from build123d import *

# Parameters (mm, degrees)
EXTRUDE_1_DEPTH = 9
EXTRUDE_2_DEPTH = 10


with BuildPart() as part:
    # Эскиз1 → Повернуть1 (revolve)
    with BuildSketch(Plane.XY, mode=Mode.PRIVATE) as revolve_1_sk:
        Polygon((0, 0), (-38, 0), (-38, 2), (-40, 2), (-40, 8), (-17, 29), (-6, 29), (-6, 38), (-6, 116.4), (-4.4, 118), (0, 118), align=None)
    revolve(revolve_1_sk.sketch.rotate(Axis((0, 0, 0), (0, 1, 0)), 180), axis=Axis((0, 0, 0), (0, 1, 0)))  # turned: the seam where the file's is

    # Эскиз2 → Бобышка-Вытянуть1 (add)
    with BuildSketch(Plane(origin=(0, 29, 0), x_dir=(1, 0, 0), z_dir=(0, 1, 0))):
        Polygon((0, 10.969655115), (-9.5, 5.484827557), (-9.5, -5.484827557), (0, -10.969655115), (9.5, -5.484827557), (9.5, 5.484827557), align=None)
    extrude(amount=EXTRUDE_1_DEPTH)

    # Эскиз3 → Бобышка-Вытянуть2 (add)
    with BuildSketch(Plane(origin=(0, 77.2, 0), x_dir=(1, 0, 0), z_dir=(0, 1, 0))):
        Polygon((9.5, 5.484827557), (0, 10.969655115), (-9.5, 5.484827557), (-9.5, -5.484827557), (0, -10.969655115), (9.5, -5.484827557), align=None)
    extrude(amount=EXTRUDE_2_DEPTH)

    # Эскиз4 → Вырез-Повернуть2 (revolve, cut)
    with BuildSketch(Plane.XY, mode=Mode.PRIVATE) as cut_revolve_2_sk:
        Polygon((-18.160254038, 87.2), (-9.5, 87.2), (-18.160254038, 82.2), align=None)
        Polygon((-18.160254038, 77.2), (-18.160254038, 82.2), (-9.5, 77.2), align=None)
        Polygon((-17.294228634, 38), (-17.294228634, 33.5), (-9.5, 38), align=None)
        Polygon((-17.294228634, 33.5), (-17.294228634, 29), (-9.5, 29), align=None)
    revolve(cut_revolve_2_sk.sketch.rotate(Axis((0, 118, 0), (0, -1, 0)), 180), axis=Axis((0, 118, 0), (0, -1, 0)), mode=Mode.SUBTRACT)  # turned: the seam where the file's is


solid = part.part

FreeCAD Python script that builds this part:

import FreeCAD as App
import Part
import Sketcher
Q = App.Units.Quantity

doc = App.newDocument("Part")
params = doc.addObject("Spreadsheet::Sheet", "Params")
for row, (alias, value) in enumerate([
    ("sketch1_width", "38 mm"),
    ("sketch1_width2", "11 mm"),
    ("sketch1_width3", "2 mm"),
    ("sketch1_height", "118 mm"),
    ("sketch1_height2", "6 mm"),
    ("revolution_angle", "360 deg"),
    ("pad1_length", "9 mm"),
    ("pad2_length", "10 mm"),
    ("sketch4_height", "5 mm"),
    ("sketch4_length", "9 mm"),
    ("groove_angle", "360 deg"),
], start=1):
    params.set(f"A{row}", alias)
    params.set(f"B{row}", "=" + value)
    params.setAlias(f"B{row}", alias)

body = doc.addObject("PartDesign::Body", "Body")

# Sketch on XY plane
sketch1 = doc.addObject("Sketcher::SketchObject", "Sketch")
body.addObject(sketch1)
sketch1.AttachmentSupport = (doc.XY_Plane, [""])
sketch1.MapMode = "FlatFace"
sketch1.addGeometry([
    Part.LineSegment(App.Vector(-38, 0, 0), App.Vector(0, 0, 0)),  # 0
    Part.LineSegment(App.Vector(0, 0, 0), App.Vector(0, 118, 0)),  # 1
    Part.LineSegment(App.Vector(0, 118, 0), App.Vector(-4.4, 118, 0)),  # 2
    Part.LineSegment(App.Vector(-4.4, 118, 0), App.Vector(-6, 116.4, 0)),  # 3
    Part.LineSegment(App.Vector(-6, 116.4, 0), App.Vector(-6, 29, 0)),  # 4
    Part.LineSegment(App.Vector(-6, 29, 0), App.Vector(-17, 29, 0)),  # 5
    Part.LineSegment(App.Vector(-17, 29, 0), App.Vector(-40, 8, 0)),  # 6
    Part.LineSegment(App.Vector(-40, 8, 0), App.Vector(-40, 2, 0)),  # 7
    Part.LineSegment(App.Vector(-40, 2, 0), App.Vector(-38, 2, 0)),  # 8
    Part.LineSegment(App.Vector(-38, 2, 0), App.Vector(-38, 0, 0)),  # 9
], False)
sketch1.addConstraint([
    Sketcher.Constraint("Coincident", 0, 2, 1, 1),
    Sketcher.Constraint("Coincident", 1, 2, 2, 1),
    Sketcher.Constraint("Coincident", 2, 2, 3, 1),
    Sketcher.Constraint("Coincident", 3, 2, 4, 1),
    Sketcher.Constraint("Coincident", 4, 2, 5, 1),
    Sketcher.Constraint("Coincident", 5, 2, 6, 1),
    Sketcher.Constraint("Coincident", 6, 2, 7, 1),
    Sketcher.Constraint("Coincident", 7, 2, 8, 1),
    Sketcher.Constraint("Coincident", 8, 2, 9, 1),
    Sketcher.Constraint("Coincident", 9, 2, 0, 1),
    Sketcher.Constraint("Horizontal", 0),
    Sketcher.Constraint("Vertical", 1),
    Sketcher.Constraint("Horizontal", 2),
    Sketcher.Constraint("Vertical", 4),
    Sketcher.Constraint("Horizontal", 5),
    Sketcher.Constraint("Vertical", 7),
    Sketcher.Constraint("Horizontal", 8),
    Sketcher.Constraint("Vertical", 9),
    Sketcher.Constraint("Coincident", 0, 2, -1, 1),
    Sketcher.Constraint("Equal", 8, 9),
    Sketcher.Constraint("DistanceX", 0, 1, 0, 2, Q("38 mm")),
    Sketcher.Constraint("DistanceX", 5, 2, 5, 1, Q("11 mm")),
    Sketcher.Constraint("DistanceX", 8, 1, 8, 2, Q("2 mm")),
    Sketcher.Constraint("DistanceY", 1, 1, 1, 2, Q("118 mm")),
    Sketcher.Constraint("DistanceY", 7, 2, 7, 1, Q("6 mm")),
    Sketcher.Constraint("Angle", 3, Q("-135 deg")),
    Sketcher.Constraint("DistanceX", 2, 2, 2, 1, Q("4.4 mm")),
    Sketcher.Constraint("DistanceY", 4, 2, 4, 1, Q("87.4 mm")),
    Sketcher.Constraint("DistanceX", 3, 2, -1, 1, Q("6 mm")),
])
sketch1.setExpression("Constraints[20]", "Params.sketch1_width")
sketch1.setExpression("Constraints[21]", "Params.sketch1_width2")
sketch1.setExpression("Constraints[22]", "Params.sketch1_width3")
sketch1.setExpression("Constraints[23]", "Params.sketch1_height")
sketch1.setExpression("Constraints[24]", "Params.sketch1_height2")
revolution = doc.addObject("PartDesign::Revolution", "Revolution")
body.addObject(revolution)
revolution.Profile = sketch1
revolution.ReferenceAxis = (sketch1, ["V_Axis"])
revolution.setExpression("Angle", "Params.revolution_angle")

# Sketch on XZ plane
sketch2 = doc.addObject("Sketcher::SketchObject", "Sketch001")
body.addObject(sketch2)
sketch2.AttachmentSupport = (doc.XZ_Plane, [""])
sketch2.MapMode = "FlatFace"
sketch2.AttachmentOffset = App.Placement(App.Vector(0, 0, -29), App.Rotation())
sketch2.addGeometry([
    Part.LineSegment(App.Vector(0, -10.969655, 0), App.Vector(-9.5, -5.484828, 0)),  # 0
    Part.LineSegment(App.Vector(-9.5, -5.484828, 0), App.Vector(-9.5, 5.484828, 0)),  # 1
    Part.LineSegment(App.Vector(-9.5, 5.484828, 0), App.Vector(0, 10.969655, 0)),  # 2
    Part.LineSegment(App.Vector(0, 10.969655, 0), App.Vector(9.5, 5.484828, 0)),  # 3
    Part.LineSegment(App.Vector(9.5, 5.484828, 0), App.Vector(9.5, -5.484828, 0)),  # 4
    Part.LineSegment(App.Vector(9.5, -5.484828, 0), App.Vector(0, -10.969655, 0)),  # 5
], False)
sketch2.addConstraint([
    Sketcher.Constraint("Coincident", 0, 2, 1, 1),
    Sketcher.Constraint("Coincident", 1, 2, 2, 1),
    Sketcher.Constraint("Coincident", 2, 2, 3, 1),
    Sketcher.Constraint("Coincident", 3, 2, 4, 1),
    Sketcher.Constraint("Coincident", 4, 2, 5, 1),
    Sketcher.Constraint("Coincident", 5, 2, 0, 1),
    Sketcher.Constraint("Vertical", 1),
    Sketcher.Constraint("Vertical", 4),
    Sketcher.Constraint("Symmetric", 0, 2, 3, 2, -1, 1),
    Sketcher.Constraint("Symmetric", 2, 2, 5, 2, -1, 1),
    Sketcher.Constraint("PointOnObject", 2, 2, -2),
    Sketcher.Constraint("Parallel", 2, 5),
    Sketcher.Constraint("Horizontal", 1, 2, 3, 2),
    Sketcher.Constraint("Angle", 0, Q("150 deg")),
    Sketcher.Constraint("DistanceX", 1, 2, 3, 2, Q("19 mm")),
    Sketcher.Constraint("DistanceY", 1, 1, 1, 2, Q("10.969655 mm")),
])
pad1 = doc.addObject("PartDesign::Pad", "Pad")
body.addObject(pad1)
pad1.Profile = sketch2
pad1.setExpression("Length", "Params.pad1_length")
pad1.Reversed = True

# Sketch on XZ plane
sketch3 = doc.addObject("Sketcher::SketchObject", "Sketch002")
body.addObject(sketch3)
sketch3.AttachmentSupport = (doc.XZ_Plane, [""])
sketch3.MapMode = "FlatFace"
sketch3.AttachmentOffset = App.Placement(App.Vector(0, 0, -77.2), App.Rotation())
sketch3.addGeometry([
    Part.LineSegment(App.Vector(9.5, -5.484828, 0), App.Vector(0, -10.969655, 0)),  # 0
    Part.LineSegment(App.Vector(0, -10.969655, 0), App.Vector(-9.5, -5.484828, 0)),  # 1
    Part.LineSegment(App.Vector(-9.5, -5.484828, 0), App.Vector(-9.5, 5.484828, 0)),  # 2
    Part.LineSegment(App.Vector(-9.5, 5.484828, 0), App.Vector(0, 10.969655, 0)),  # 3
    Part.LineSegment(App.Vector(0, 10.969655, 0), App.Vector(9.5, 5.484828, 0)),  # 4
    Part.LineSegment(App.Vector(9.5, 5.484828, 0), App.Vector(9.5, -5.484828, 0)),  # 5
], False)
sketch3.addConstraint([
    Sketcher.Constraint("Coincident", 0, 2, 1, 1),
    Sketcher.Constraint("Coincident", 1, 2, 2, 1),
    Sketcher.Constraint("Coincident", 2, 2, 3, 1),
    Sketcher.Constraint("Coincident", 3, 2, 4, 1),
    Sketcher.Constraint("Coincident", 4, 2, 5, 1),
    Sketcher.Constraint("Coincident", 5, 2, 0, 1),
    Sketcher.Constraint("Vertical", 2),
    Sketcher.Constraint("Vertical", 5),
    Sketcher.Constraint("Symmetric", 0, 2, 3, 2, -1, 1),
    Sketcher.Constraint("Symmetric", 1, 2, 4, 2, -1, 1),
    Sketcher.Constraint("PointOnObject", 0, 2, -2),
    Sketcher.Constraint("Parallel", 0, 3),
    Sketcher.Constraint("Horizontal", 2, 2, 4, 2),
    Sketcher.Constraint("Angle", 0, Q("-150 deg")),
    Sketcher.Constraint("DistanceX", 2, 2, 4, 2, Q("19 mm")),
    Sketcher.Constraint("DistanceY", 2, 1, 2, 2, Q("10.969655 mm")),
])
pad2 = doc.addObject("PartDesign::Pad", "Pad001")
body.addObject(pad2)
pad2.Profile = sketch3
pad2.setExpression("Length", "Params.pad2_length")
pad2.Reversed = True

# Sketch on XY plane
sketch4 = doc.addObject("Sketcher::SketchObject", "Sketch003")
body.addObject(sketch4)
sketch4.AttachmentSupport = (doc.XY_Plane, [""])
sketch4.MapMode = "FlatFace"
sketch4.addGeometry([
    Part.LineSegment(App.Vector(-9.5, 87.2, 0), App.Vector(-18.160254, 87.2, 0)),  # 0
    Part.LineSegment(App.Vector(-18.160254, 87.2, 0), App.Vector(-18.160254, 82.2, 0)),  # 1
    Part.LineSegment(App.Vector(-18.160254, 82.2, 0), App.Vector(-9.5, 87.2, 0)),  # 2
    Part.LineSegment(App.Vector(-18.160254, 82.2, 0), App.Vector(-18.160254, 77.2, 0)),  # 3
    Part.LineSegment(App.Vector(-18.160254, 77.2, 0), App.Vector(-9.5, 77.2, 0)),  # 4
    Part.LineSegment(App.Vector(-9.5, 77.2, 0), App.Vector(-18.160254, 82.2, 0)),  # 5
    Part.LineSegment(App.Vector(-17.294229, 38, 0), App.Vector(-17.294229, 33.5, 0)),  # 6
    Part.LineSegment(App.Vector(-17.294229, 33.5, 0), App.Vector(-9.5, 38, 0)),  # 7
    Part.LineSegment(App.Vector(-9.5, 38, 0), App.Vector(-17.294229, 38, 0)),  # 8
    Part.LineSegment(App.Vector(-17.294229, 33.5, 0), App.Vector(-17.294229, 29, 0)),  # 9
    Part.LineSegment(App.Vector(-17.294229, 29, 0), App.Vector(-9.5, 29, 0)),  # 10
    Part.LineSegment(App.Vector(-9.5, 29, 0), App.Vector(-17.294229, 33.5, 0)),  # 11
], False)
sketch4.addConstraint([
    Sketcher.Constraint("Coincident", 0, 2, 1, 1),
    Sketcher.Constraint("Coincident", 1, 2, 2, 1),
    Sketcher.Constraint("Coincident", 2, 2, 0, 1),
    Sketcher.Constraint("Coincident", 3, 2, 4, 1),
    Sketcher.Constraint("Coincident", 4, 2, 5, 1),
    Sketcher.Constraint("Coincident", 5, 2, 3, 1),
    Sketcher.Constraint("Coincident", 6, 2, 7, 1),
    Sketcher.Constraint("Coincident", 7, 2, 8, 1),
    Sketcher.Constraint("Coincident", 8, 2, 6, 1),
    Sketcher.Constraint("Coincident", 9, 2, 10, 1),
    Sketcher.Constraint("Coincident", 10, 2, 11, 1),
    Sketcher.Constraint("Coincident", 11, 2, 9, 1),
    Sketcher.Constraint("Horizontal", 0),
    Sketcher.Constraint("Vertical", 1),
    Sketcher.Constraint("Vertical", 3),
    Sketcher.Constraint("Horizontal", 4),
    Sketcher.Constraint("Vertical", 6),
    Sketcher.Constraint("Horizontal", 8),
    Sketcher.Constraint("Vertical", 9),
    Sketcher.Constraint("Horizontal", 10),
    Sketcher.Constraint("Coincident", 5, 2, 1, 2),
    Sketcher.Constraint("Coincident", 11, 2, 6, 2),
    Sketcher.Constraint("Parallel", 2, 7),
    Sketcher.Constraint("Parallel", 5, 11),
    Sketcher.Constraint("Vertical", 2, 2, 4, 2),
    Sketcher.Constraint("Vertical", 4, 2, 7, 2),
    Sketcher.Constraint("Vertical", 7, 2, 10, 2),
    Sketcher.Constraint("Equal", 1, 3),
    Sketcher.Constraint("DistanceY", 1, 2, 1, 1, Q("5 mm")),
    Sketcher.Constraint("Angle", 2, Q("30 deg")),
    Sketcher.Constraint("Distance", 7, Q("9 mm")),
    Sketcher.Constraint("DistanceY", -1, 1, 7, 2, Q("38 mm")),
    Sketcher.Constraint("DistanceY", -1, 1, 0, 2, Q("87.2 mm")),
    Sketcher.Constraint("DistanceX", 2, 2, -1, 1, Q("9.5 mm")),
])
sketch4.setExpression("Constraints[28]", "Params.sketch4_height")
sketch4.setExpression("Constraints[30]", "Params.sketch4_length")
groove = doc.addObject("PartDesign::Groove", "Groove")
body.addObject(groove)
groove.Profile = sketch4
groove.ReferenceAxis = (sketch4, ["V_Axis"])
groove.setExpression("Angle", "Params.groove_angle")

doc.recompute()
